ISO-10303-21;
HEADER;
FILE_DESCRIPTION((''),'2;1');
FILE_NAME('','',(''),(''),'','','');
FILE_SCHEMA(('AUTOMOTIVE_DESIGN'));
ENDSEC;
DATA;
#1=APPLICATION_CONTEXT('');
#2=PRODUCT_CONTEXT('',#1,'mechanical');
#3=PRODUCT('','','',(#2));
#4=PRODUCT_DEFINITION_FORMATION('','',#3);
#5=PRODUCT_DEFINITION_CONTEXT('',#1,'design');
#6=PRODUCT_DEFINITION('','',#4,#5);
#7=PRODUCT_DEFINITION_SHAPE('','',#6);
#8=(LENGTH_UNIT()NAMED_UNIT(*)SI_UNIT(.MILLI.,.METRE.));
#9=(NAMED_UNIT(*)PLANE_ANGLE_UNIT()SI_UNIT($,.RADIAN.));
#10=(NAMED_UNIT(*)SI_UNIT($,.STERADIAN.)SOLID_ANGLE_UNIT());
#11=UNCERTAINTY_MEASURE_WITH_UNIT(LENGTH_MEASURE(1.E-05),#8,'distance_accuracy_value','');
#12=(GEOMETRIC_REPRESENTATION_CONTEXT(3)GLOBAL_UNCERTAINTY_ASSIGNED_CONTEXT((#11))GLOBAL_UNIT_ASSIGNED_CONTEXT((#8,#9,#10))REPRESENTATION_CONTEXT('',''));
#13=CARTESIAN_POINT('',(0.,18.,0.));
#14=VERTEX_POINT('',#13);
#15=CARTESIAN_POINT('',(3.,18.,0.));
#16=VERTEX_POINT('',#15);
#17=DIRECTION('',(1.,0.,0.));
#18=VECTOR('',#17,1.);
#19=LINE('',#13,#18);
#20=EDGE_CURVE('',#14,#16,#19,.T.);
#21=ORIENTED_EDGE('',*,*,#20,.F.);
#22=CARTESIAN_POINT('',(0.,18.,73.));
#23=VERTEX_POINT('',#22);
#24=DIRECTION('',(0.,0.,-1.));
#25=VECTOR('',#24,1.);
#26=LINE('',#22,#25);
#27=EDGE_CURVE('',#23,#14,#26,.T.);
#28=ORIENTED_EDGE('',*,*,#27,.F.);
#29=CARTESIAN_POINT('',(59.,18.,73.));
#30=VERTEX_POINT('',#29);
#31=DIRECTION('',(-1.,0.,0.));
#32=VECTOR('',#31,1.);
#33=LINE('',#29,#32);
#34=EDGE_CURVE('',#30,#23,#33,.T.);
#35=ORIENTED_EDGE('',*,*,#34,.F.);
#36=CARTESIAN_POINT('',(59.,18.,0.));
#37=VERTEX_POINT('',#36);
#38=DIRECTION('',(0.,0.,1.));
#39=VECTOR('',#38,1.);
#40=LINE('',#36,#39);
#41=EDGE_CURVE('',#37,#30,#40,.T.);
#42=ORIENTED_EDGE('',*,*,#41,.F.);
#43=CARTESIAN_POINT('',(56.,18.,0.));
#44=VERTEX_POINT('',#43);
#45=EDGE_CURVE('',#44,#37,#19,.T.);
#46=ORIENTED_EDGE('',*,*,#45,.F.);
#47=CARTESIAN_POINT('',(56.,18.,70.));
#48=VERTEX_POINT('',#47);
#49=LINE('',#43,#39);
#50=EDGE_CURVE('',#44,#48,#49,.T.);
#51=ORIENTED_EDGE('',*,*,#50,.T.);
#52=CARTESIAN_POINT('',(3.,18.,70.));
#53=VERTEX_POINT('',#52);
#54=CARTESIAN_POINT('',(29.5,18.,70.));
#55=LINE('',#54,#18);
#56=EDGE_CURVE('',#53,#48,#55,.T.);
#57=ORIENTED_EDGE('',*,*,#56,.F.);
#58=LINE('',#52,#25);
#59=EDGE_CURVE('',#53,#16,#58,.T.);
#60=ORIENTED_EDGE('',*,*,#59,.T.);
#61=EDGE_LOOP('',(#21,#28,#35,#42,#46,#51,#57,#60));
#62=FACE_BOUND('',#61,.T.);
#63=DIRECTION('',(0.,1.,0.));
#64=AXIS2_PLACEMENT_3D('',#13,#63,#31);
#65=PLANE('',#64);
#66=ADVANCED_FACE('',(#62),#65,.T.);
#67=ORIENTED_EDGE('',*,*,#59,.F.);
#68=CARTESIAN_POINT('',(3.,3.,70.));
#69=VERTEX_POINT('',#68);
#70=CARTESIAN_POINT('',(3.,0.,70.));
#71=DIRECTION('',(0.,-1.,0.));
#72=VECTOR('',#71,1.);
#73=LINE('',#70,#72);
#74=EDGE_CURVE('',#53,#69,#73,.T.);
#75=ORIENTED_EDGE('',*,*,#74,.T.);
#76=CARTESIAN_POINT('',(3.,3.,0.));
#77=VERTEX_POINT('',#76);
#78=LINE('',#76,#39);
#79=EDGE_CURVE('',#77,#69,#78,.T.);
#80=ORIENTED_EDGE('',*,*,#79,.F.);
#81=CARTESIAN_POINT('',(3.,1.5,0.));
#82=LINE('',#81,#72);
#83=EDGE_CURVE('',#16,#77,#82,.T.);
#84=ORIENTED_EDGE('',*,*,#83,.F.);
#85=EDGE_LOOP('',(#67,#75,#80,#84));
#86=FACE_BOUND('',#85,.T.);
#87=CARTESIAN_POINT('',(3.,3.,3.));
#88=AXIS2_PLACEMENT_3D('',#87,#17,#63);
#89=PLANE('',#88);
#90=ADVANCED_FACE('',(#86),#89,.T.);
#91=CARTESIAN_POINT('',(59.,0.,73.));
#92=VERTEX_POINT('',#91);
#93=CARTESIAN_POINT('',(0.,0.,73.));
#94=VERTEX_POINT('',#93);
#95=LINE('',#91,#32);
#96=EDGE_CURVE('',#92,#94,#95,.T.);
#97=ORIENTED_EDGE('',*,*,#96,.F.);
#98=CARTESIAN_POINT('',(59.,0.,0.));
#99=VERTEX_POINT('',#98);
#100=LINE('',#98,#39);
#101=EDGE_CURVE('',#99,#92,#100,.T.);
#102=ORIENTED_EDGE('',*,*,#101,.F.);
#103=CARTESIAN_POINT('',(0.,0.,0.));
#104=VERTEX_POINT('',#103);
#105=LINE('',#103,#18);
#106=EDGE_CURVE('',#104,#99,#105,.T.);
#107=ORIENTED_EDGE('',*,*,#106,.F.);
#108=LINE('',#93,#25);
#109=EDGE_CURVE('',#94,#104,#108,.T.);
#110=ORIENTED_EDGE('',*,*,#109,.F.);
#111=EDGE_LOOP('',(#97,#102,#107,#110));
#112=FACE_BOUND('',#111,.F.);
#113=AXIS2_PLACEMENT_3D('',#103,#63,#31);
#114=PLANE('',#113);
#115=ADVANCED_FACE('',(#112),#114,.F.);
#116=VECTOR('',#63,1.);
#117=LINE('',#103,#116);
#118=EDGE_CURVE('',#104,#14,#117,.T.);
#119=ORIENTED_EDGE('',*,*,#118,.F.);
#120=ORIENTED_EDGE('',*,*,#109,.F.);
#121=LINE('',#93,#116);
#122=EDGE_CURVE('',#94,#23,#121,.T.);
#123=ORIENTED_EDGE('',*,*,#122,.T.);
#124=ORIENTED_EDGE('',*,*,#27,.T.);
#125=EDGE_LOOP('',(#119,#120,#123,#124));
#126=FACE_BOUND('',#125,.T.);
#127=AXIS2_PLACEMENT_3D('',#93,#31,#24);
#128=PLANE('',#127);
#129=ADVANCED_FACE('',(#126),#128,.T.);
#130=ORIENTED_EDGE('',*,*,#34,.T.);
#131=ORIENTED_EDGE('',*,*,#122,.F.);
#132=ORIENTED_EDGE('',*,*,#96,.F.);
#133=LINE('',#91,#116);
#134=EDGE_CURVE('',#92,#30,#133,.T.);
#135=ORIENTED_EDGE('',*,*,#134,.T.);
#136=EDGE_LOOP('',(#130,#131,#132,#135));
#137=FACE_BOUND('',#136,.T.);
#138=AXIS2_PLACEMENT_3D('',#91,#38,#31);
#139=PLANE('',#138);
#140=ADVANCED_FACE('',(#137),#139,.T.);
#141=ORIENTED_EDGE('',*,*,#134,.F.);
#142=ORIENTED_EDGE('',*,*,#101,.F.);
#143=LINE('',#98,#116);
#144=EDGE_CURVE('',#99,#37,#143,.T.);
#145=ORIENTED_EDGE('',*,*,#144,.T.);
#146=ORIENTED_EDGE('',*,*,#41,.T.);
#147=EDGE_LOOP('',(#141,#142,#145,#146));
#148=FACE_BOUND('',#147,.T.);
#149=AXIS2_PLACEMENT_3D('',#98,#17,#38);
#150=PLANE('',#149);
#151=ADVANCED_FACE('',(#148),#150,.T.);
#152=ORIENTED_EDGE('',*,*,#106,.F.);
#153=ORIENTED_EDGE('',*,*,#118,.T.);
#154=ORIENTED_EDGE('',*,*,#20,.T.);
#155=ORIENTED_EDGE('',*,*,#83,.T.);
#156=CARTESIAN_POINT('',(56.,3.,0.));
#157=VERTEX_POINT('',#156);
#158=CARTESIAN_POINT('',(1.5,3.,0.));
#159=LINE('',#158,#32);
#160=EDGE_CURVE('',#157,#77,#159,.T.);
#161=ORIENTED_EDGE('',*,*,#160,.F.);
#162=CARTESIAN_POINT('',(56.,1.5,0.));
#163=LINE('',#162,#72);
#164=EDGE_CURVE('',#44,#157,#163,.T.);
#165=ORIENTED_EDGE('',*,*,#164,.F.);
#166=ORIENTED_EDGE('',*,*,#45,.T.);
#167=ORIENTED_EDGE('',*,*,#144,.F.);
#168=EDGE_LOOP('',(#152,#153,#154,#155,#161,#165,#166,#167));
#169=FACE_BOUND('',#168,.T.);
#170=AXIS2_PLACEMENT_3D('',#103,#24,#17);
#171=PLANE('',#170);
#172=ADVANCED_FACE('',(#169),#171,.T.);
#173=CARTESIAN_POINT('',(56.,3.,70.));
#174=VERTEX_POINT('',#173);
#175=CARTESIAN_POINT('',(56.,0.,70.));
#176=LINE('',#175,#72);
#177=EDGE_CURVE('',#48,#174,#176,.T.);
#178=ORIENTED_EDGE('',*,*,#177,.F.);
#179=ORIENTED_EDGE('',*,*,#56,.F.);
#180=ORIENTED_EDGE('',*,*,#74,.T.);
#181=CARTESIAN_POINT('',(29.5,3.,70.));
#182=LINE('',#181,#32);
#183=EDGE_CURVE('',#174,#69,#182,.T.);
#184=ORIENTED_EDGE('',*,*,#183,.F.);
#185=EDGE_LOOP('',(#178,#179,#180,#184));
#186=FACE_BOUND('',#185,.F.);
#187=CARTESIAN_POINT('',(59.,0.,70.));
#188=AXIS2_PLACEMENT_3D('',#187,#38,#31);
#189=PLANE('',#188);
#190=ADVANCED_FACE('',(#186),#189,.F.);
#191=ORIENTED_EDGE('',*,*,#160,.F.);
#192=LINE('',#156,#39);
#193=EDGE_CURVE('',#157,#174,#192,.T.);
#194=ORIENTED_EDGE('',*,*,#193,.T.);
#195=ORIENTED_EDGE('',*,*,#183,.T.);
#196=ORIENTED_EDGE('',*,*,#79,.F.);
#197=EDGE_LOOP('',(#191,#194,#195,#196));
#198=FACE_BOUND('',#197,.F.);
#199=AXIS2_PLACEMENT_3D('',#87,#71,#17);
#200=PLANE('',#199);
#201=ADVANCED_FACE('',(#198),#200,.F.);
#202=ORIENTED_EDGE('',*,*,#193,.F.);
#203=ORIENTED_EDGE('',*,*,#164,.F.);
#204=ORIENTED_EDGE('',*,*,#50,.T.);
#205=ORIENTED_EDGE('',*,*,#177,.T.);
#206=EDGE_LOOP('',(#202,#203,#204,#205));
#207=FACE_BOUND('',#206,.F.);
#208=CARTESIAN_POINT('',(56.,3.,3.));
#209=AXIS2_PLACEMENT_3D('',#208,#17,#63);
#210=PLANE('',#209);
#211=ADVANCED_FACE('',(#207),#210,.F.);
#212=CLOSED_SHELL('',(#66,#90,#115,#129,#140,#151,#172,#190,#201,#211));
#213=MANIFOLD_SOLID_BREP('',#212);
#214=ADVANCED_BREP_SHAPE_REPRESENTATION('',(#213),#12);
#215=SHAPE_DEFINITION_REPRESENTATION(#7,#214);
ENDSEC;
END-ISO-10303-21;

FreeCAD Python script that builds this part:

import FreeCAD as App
import Part
import Sketcher


def faces_at(feature, points):
    """Names of the faces that lie closest to the given points."""
    faces = feature.Shape.Faces
    near = lambda p: min(range(len(faces)), key=lambda i: faces[i].distToShape(Part.Vertex(*p))[0])
    return sorted({f"Face{near(p) + 1}" for p in points})

doc = App.newDocument("Part")
body = doc.addObject("PartDesign::Body", "Body")

# Sketch on XZ plane
sketch1 = body.newObject("Sketcher::SketchObject", "Sketch")
sketch1.AttachmentSupport = (doc.getObject("XZ_Plane"), [""])
sketch1.MapMode = "FlatFace"
sketch1.addGeometry([
    Part.LineSegment(App.Vector(59, 0, 0), App.Vector(0, 0, 0)),
    Part.LineSegment(App.Vector(0, 0, 0), App.Vector(0, 73, 0)),
    Part.LineSegment(App.Vector(0, 73, 0), App.Vector(59, 73, 0)),
    Part.LineSegment(App.Vector(59, 73, 0), App.Vector(59, 0, 0)),
], False)
sketch1.addConstraint([
    Sketcher.Constraint("Coincident", 0, 2, 1, 1),
    Sketcher.Constraint("Coincident", 1, 2, 2, 1),
    Sketcher.Constraint("Coincident", 2, 2, 3, 1),
    Sketcher.Constraint("Coincident", 3, 2, 0, 1),
    Sketcher.Constraint("Horizontal", 0),
    Sketcher.Constraint("Vertical", 1),
    Sketcher.Constraint("Horizontal", 2),
    Sketcher.Constraint("Vertical", 3),
    Sketcher.Constraint("Coincident", 0, 2, -1, 1),
    Sketcher.Constraint("DistanceX", 0, 2, 0, 1, 59.0),
    Sketcher.Constraint("DistanceY", 1, 1, 1, 2, 73.0),
])
pad1 = body.newObject("PartDesign::Pad", "Pad")
pad1.Profile = sketch1
pad1.Length = 18
pad1.Reversed = True
doc.recompute()

thickness = body.newObject("PartDesign::Thickness", "Thickness")
thickness.Base = (pad1, faces_at(pad1, [(19.667, 18, 24.333)]))
thickness.Value = 3
thickness.Reversed = True
thickness.Join = "Intersection"

# Sketch on XY plane
sketch2 = body.newObject("Sketcher::SketchObject", "Sketch001")
sketch2.AttachmentSupport = (doc.getObject("XY_Plane"), [""])
sketch2.MapMode = "FlatFace"
sketch2.AttachmentOffset = App.Placement(App.Vector(0, 0, 3), App.Rotation())
sketch2.addGeometry([
    Part.LineSegment(App.Vector(3, 18, 0), App.Vector(3, 3, 0)),
    Part.LineSegment(App.Vector(3, 3, 0), App.Vector(56, 3, 0)),
    Part.LineSegment(App.Vector(56, 3, 0), App.Vector(56, 18, 0)),
    Part.LineSegment(App.Vector(56, 18, 0), App.Vector(3, 18, 0)),
], False)
sketch2.addConstraint([
    Sketcher.Constraint("Coincident", 0, 2, 1, 1),
    Sketcher.Constraint("Coincident", 1, 2, 2, 1),
    Sketcher.Constraint("Coincident", 2, 2, 3, 1),
    Sketcher.Constraint("Coincident", 3, 2, 0, 1),
    Sketcher.Constraint("Vertical", 0),
    Sketcher.Constraint("Horizontal", 1),
    Sketcher.Constraint("Vertical", 2),
    Sketcher.Constraint("Horizontal", 3),
    Sketcher.Constraint("DistanceX", 1, 1, 1, 2, 53.0),
    Sketcher.Constraint("DistanceY", 0, 2, 0, 1, 15.0),
    Sketcher.Constraint("DistanceX", -1, 1, 0, 2, 3.0),
    Sketcher.Constraint("DistanceY", -1, 1, 0, 2, 3.0),
])
pocket1 = body.newObject("PartDesign::Pocket", "Pocket")
pocket1.Profile = sketch2
pocket1.Length = 10

doc.recompute()
